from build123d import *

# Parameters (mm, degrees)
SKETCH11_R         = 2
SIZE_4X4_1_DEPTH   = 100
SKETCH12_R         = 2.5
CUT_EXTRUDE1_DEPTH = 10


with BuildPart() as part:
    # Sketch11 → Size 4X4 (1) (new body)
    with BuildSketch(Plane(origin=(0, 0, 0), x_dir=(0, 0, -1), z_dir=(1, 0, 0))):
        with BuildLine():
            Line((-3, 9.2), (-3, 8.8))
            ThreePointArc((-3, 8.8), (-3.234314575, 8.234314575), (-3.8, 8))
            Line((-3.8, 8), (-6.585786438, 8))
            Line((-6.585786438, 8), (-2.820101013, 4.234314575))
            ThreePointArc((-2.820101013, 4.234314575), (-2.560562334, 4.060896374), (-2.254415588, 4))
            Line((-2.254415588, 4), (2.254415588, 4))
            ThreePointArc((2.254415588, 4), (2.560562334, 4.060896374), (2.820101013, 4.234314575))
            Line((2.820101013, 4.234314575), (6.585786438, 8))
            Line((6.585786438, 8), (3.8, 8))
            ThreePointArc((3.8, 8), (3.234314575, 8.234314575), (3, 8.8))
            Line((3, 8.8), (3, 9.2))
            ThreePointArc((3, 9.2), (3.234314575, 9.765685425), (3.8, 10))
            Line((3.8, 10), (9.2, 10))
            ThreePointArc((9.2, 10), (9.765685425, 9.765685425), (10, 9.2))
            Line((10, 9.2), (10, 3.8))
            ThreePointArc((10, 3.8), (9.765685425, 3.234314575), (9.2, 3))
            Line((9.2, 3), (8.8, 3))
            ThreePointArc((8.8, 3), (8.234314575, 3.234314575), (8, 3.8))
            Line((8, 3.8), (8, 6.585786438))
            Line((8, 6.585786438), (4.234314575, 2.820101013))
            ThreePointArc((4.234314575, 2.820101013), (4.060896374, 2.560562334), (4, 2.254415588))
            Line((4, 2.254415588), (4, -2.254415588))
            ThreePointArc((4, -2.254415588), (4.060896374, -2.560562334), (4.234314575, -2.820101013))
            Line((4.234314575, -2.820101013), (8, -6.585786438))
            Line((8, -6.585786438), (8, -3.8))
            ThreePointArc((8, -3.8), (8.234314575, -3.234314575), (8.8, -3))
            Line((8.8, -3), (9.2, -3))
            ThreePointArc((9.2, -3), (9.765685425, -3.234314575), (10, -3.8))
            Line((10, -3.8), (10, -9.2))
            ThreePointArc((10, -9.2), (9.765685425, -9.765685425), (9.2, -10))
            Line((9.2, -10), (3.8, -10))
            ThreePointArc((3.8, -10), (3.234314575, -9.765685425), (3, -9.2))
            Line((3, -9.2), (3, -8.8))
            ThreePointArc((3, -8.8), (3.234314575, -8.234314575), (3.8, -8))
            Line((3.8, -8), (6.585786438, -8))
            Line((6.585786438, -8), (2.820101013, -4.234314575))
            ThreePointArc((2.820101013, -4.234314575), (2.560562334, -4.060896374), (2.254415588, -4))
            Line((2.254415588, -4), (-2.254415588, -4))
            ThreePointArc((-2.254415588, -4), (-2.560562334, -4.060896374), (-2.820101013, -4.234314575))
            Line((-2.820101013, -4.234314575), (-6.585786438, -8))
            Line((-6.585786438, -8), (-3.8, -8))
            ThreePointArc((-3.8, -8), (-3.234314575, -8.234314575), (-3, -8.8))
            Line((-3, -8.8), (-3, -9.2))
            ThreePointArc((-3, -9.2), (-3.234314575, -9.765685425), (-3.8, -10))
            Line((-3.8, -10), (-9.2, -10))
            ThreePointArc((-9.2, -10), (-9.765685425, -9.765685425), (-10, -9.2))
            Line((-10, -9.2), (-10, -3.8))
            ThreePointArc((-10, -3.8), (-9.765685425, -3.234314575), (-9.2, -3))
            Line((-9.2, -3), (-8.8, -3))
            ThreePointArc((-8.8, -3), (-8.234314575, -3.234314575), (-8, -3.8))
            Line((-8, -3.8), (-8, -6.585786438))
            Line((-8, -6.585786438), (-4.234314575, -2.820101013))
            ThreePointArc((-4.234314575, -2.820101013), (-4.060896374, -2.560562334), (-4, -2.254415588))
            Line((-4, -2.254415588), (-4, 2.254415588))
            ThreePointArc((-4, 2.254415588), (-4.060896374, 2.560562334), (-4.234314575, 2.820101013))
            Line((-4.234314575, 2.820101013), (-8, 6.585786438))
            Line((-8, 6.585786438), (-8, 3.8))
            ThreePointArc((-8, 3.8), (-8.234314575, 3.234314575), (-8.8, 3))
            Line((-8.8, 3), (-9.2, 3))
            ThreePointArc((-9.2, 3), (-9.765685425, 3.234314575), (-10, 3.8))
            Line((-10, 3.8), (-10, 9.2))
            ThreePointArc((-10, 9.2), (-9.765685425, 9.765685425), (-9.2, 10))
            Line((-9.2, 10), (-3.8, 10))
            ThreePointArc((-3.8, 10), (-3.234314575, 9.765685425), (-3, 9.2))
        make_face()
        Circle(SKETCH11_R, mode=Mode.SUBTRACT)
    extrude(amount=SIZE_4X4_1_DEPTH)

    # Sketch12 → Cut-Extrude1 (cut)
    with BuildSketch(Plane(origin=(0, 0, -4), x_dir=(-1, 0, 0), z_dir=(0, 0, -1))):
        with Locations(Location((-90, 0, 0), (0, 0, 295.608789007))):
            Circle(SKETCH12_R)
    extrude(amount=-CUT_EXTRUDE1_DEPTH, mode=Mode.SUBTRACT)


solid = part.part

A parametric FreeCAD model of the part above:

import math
import FreeCAD as App
import Part
import Sketcher

doc = App.newDocument("Part")
params = doc.addObject("Spreadsheet::Sheet", "Params")
for row, (alias, value) in enumerate([
    ("sketch1_diameter", "4 mm"),
    ("sketch1_radius", "0.8 mm"),
    ("sketch1_width", "0.4 mm"),
    ("sketch1_width2", "5.4 mm"),
    ("pad1_length", "100 mm"),
    ("sketch2_diameter", "5 mm"),
    ("pocket1_length", "10 mm"),
], start=1):
    params.set(f"A{row}", alias)
    params.set(f"B{row}", "=" + value)
    params.setAlias(f"B{row}", alias)

body = doc.addObject("PartDesign::Body", "Body")

sketch1 = body.newObject("Sketcher::SketchObject", "Sketch")
sketch1.AttachmentSupport = (doc.getObject("YZ_Plane"), [""])
sketch1.MapMode = "FlatFace"
sketch1.addGeometry(Part.LineSegment(App.Vector(8.8, 3, 0), App.Vector(9.2, 3, 0)), False)
sketch1.addGeometry(Part.ArcOfCircle(Part.Circle(App.Vector(9.2, 3.8, 0), App.Vector(0, 0, 1), 0.8), math.radians(-90), math.radians(0)), False)
sketch1.addGeometry(Part.LineSegment(App.Vector(10, 3.8, 0), App.Vector(10, 9.2, 0)), False)
sketch1.addGeometry(Part.ArcOfCircle(Part.Circle(App.Vector(9.2, 9.2, 0), App.Vector(0, 0, 1), 0.8), math.radians(0), math.radians(90)), False)
sketch1.addGeometry(Part.LineSegment(App.Vector(9.2, 10, 0), App.Vector(3.8, 10, 0)), False)
sketch1.addGeometry(Part.ArcOfCircle(Part.Circle(App.Vector(3.8, 9.2, 0), App.Vector(0, 0, 1), 0.8), math.radians(90), math.radians(180)), False)
sketch1.addGeometry(Part.LineSegment(App.Vector(3, 9.2, 0), App.Vector(3, 8.8, 0)), False)
sketch1.addGeometry(Part.ArcOfCircle(Part.Circle(App.Vector(3.8, 8.8, 0), App.Vector(0, 0, 1), 0.8), math.radians(180), math.radians(270)), False)
sketch1.addGeometry(Part.LineSegment(App.Vector(3.8, 8, 0), App.Vector(6.59, 8, 0)), False)
sketch1.addGeometry(Part.LineSegment(App.Vector(6.59, 8, 0), App.Vector(2.82, 4.23, 0)), False)
sketch1.addGeometry(Part.ArcOfCircle(Part.Circle(App.Vector(2.25, 4.8, 0), App.Vector(0, 0, 1), 0.8), math.radians(-90), math.radians(-45)), False)
sketch1.addGeometry(Part.LineSegment(App.Vector(2.25, 4, 0), App.Vector(-2.25, 4, 0)), False)
sketch1.addGeometry(Part.ArcOfCircle(Part.Circle(App.Vector(-2.25, 4.8, 0), App.Vector(0, 0, 1), 0.8), math.radians(-135), math.radians(-90)), False)
sketch1.addGeometry(Part.LineSegment(App.Vector(-2.82, 4.23, 0), App.Vector(-6.59, 8, 0)), False)
sketch1.addGeometry(Part.LineSegment(App.Vector(-6.59, 8, 0), App.Vector(-3.8, 8, 0)), False)
sketch1.addGeometry(Part.ArcOfCircle(Part.Circle(App.Vector(-3.8, 8.8, 0), App.Vector(0, 0, 1), 0.8), math.radians(-90), math.radians(0)), False)
sketch1.addGeometry(Part.LineSegment(App.Vector(-3, 8.8, 0), App.Vector(-3, 9.2, 0)), False)
sketch1.addGeometry(Part.ArcOfCircle(Part.Circle(App.Vector(-3.8, 9.2, 0), App.Vector(0, 0, 1), 0.8), math.radians(0), math.radians(90)), False)
sketch1.addGeometry(Part.LineSegment(App.Vector(-3.8, 10, 0), App.Vector(-9.2, 10, 0)), False)
sketch1.addGeometry(Part.ArcOfCircle(Part.Circle(App.Vector(-9.2, 9.2, 0), App.Vector(0, 0, 1), 0.8), math.radians(90), math.radians(180)), False)
sketch1.addGeometry(Part.LineSegment(App.Vector(-10, 9.2, 0), App.Vector(-10, 3.8, 0)), False)
sketch1.addGeometry(Part.ArcOfCircle(Part.Circle(App.Vector(-9.2, 3.8, 0), App.Vector(0, 0, 1), 0.8), math.radians(180), math.radians(270)), False)
sketch1.addGeometry(Part.LineSegment(App.Vector(-9.2, 3, 0), App.Vector(-8.8, 3, 0)), False)
sketch1.addGeometry(Part.ArcOfCircle(Part.Circle(App.Vector(-8.8, 3.8, 0), App.Vector(0, 0, 1), 0.8), math.radians(-90), math.radians(0)), False)
sketch1.addGeometry(Part.LineSegment(App.Vector(-8, 3.8, 0), App.Vector(-8, 6.59, 0)), False)
sketch1.addGeometry(Part.LineSegment(App.Vector(-8, 6.59, 0), App.Vector(-4.23, 2.82, 0)), False)
sketch1.addGeometry(Part.ArcOfCircle(Part.Circle(App.Vector(-4.8, 2.25, 0), App.Vector(0, 0, 1), 0.8), math.radians(0), math.radians(45)), False)
sketch1.addGeometry(Part.LineSegment(App.Vector(-4, 2.25, 0), App.Vector(-4, -2.25, 0)), False)
sketch1.addGeometry(Part.ArcOfCircle(Part.Circle(App.Vector(-4.8, -2.25, 0), App.Vector(0, 0, 1), 0.8), math.radians(-45), math.radians(0)), False)
sketch1.addGeometry(Part.LineSegment(App.Vector(-4.23, -2.82, 0), App.Vector(-8, -6.59, 0)), False)
sketch1.addGeometry(Part.LineSegment(App.Vector(-8, -6.59, 0), App.Vector(-8, -3.8, 0)), False)
sketch1.addGeometry(Part.ArcOfCircle(Part.Circle(App.Vector(-8.8, -3.8, 0), App.Vector(0, 0, 1), 0.8), math.radians(0), math.radians(90)), False)
sketch1.addGeometry(Part.LineSegment(App.Vector(-8.8, -3, 0), App.Vector(-9.2, -3, 0)), False)
sketch1.addGeometry(Part.ArcOfCircle(Part.Circle(App.Vector(-9.2, -3.8, 0), App.Vector(0, 0, 1), 0.8), math.radians(90), math.radians(180)), False)
sketch1.addGeometry(Part.LineSegment(App.Vector(-10, -3.8, 0), App.Vector(-10, -9.2, 0)), False)
sketch1.addGeometry(Part.ArcOfCircle(Part.Circle(App.Vector(-9.2, -9.2, 0), App.Vector(0, 0, 1), 0.8), math.radians(180), math.radians(270)), False)
sketch1.addGeometry(Part.LineSegment(App.Vector(-9.2, -10, 0), App.Vector(-3.8, -10, 0)), False)
sketch1.addGeometry(Part.ArcOfCircle(Part.Circle(App.Vector(-3.8, -9.2, 0), App.Vector(0, 0, 1), 0.8), math.radians(-90), math.radians(0)), False)
sketch1.addGeometry(Part.LineSegment(App.Vector(-3, -9.2, 0), App.Vector(-3, -8.8, 0)), False)
sketch1.addGeometry(Part.ArcOfCircle(Part.Circle(App.Vector(-3.8, -8.8, 0), App.Vector(0, 0, 1), 0.8), math.radians(0), math.radians(90)), False)
sketch1.addGeometry(Part.LineSegment(App.Vector(-3.8, -8, 0), App.Vector(-6.59, -8, 0)), False)
sketch1.addGeometry(Part.LineSegment(App.Vector(-6.59, -8, 0), App.Vector(-2.82, -4.23, 0)), False)
sketch1.addGeometry(Part.ArcOfCircle(Part.Circle(App.Vector(-2.25, -4.8, 0), App.Vector(0, 0, 1), 0.8), math.radians(90), math.radians(135)), False)
sketch1.addGeometry(Part.LineSegment(App.Vector(-2.25, -4, 0), App.Vector(2.25, -4, 0)), False)
sketch1.addGeometry(Part.ArcOfCircle(Part.Circle(App.Vector(2.25, -4.8, 0), App.Vector(0, 0, 1), 0.8), math.radians(45), math.radians(90)), False)
sketch1.addGeometry(Part.LineSegment(App.Vector(2.82, -4.23, 0), App.Vector(6.59, -8, 0)), False)
sketch1.addGeometry(Part.LineSegment(App.Vector(6.59, -8, 0), App.Vector(3.8, -8, 0)), False)
sketch1.addGeometry(Part.ArcOfCircle(Part.Circle(App.Vector(3.8, -8.8, 0), App.Vector(0, 0, 1), 0.8), math.radians(90), math.radians(180)), False)
sketch1.addGeometry(Part.LineSegment(App.Vector(3, -8.8, 0), App.Vector(3, -9.2, 0)), False)
sketch1.addGeometry(Part.ArcOfCircle(Part.Circle(App.Vector(3.8, -9.2, 0), App.Vector(0, 0, 1), 0.8), math.radians(180), math.radians(270)), False)
sketch1.addGeometry(Part.LineSegment(App.Vector(3.8, -10, 0), App.Vector(9.2, -10, 0)), False)
sketch1.addGeometry(Part.ArcOfCircle(Part.Circle(App.Vector(9.2, -9.2, 0), App.Vector(0, 0, 1), 0.8), math.radians(-90), math.radians(0)), False)
sketch1.addGeometry(Part.LineSegment(App.Vector(10, -9.2, 0), App.Vector(10, -3.8, 0)), False)
sketch1.addGeometry(Part.ArcOfCircle(Part.Circle(App.Vector(9.2, -3.8, 0), App.Vector(0, 0, 1), 0.8), math.radians(0), math.radians(90)), False)
sketch1.addGeometry(Part.LineSegment(App.Vector(9.2, -3, 0), App.Vector(8.8, -3, 0)), False)
sketch1.addGeometry(Part.ArcOfCircle(Part.Circle(App.Vector(8.8, -3.8, 0), App.Vector(0, 0, 1), 0.8), math.radians(90), math.radians(180)), False)
sketch1.addGeometry(Part.LineSegment(App.Vector(8, -3.8, 0), App.Vector(8, -6.59, 0)), False)
sketch1.addGeometry(Part.LineSegment(App.Vector(8, -6.59, 0), App.Vector(4.23, -2.82, 0)), False)
sketch1.addGeometry(Part.ArcOfCircle(Part.Circle(App.Vector(4.8, -2.25, 0), App.Vector(0, 0, 1), 0.8), math.radians(180), math.radians(225)), False)
sketch1.addGeometry(Part.LineSegment(App.Vector(4, -2.25, 0), App.Vector(4, 2.25, 0)), False)
sketch1.addGeometry(Part.ArcOfCircle(Part.Circle(App.Vector(4.8, 2.25, 0), App.Vector(0, 0, 1), 0.8), math.radians(135), math.radians(180)), False)
sketch1.addGeometry(Part.LineSegment(App.Vector(4.23, 2.82, 0), App.Vector(8, 6.59, 0)), False)
sketch1.addGeometry(Part.LineSegment(App.Vector(8, 6.59, 0), App.Vector(8, 3.8, 0)), False)
sketch1.addGeometry(Part.ArcOfCircle(Part.Circle(App.Vector(8.8, 3.8, 0), App.Vector(0, 0, 1), 0.8), math.radians(180), math.radians(270)), False)
sketch1.addGeometry(Part.Circle(App.Vector(0, 0, 0), App.Vector(0, 0, 1), 2), False)
sketch1.addConstraint(Sketcher.Constraint("Tangent", 0, 2, 1, 1))
sketch1.addConstraint(Sketcher.Constraint("Tangent", 1, 2, 2, 1))
sketch1.addConstraint(Sketcher.Constraint("Tangent", 2, 2, 3, 1))
sketch1.addConstraint(Sketcher.Constraint("Tangent", 3, 2, 4, 1))
sketch1.addConstraint(Sketcher.Constraint("Tangent", 4, 2, 5, 1))
sketch1.addConstraint(Sketcher.Constraint("Tangent", 5, 2, 6, 1))
sketch1.addConstraint(Sketcher.Constraint("Tangent", 6, 2, 7, 1))
sketch1.addConstraint(Sketcher.Constraint("Tangent", 7, 2, 8, 1))
sketch1.addConstraint(Sketcher.Constraint("Coincident", 8, 2, 9, 1))
sketch1.addConstraint(Sketcher.Constraint("Tangent", 9, 2, 10, 2))
sketch1.addConstraint(Sketcher.Constraint("Tangent", 10, 1, 11, 1))
sketch1.addConstraint(Sketcher.Constraint("Tangent", 11, 2, 12, 2))
sketch1.addConstraint(Sketcher.Constraint("Tangent", 12, 1, 13, 1))
sketch1.addConstraint(Sketcher.Constraint("Coincident", 13, 2, 14, 1))
sketch1.addConstraint(Sketcher.Constraint("Tangent", 14, 2, 15, 1))
sketch1.addConstraint(Sketcher.Constraint("Tangent", 15, 2, 16, 1))
sketch1.addConstraint(Sketcher.Constraint("Tangent", 16, 2, 17, 1))
sketch1.addConstraint(Sketcher.Constraint("Tangent", 17, 2, 18, 1))
sketch1.addConstraint(Sketcher.Constraint("Tangent", 18, 2, 19, 1))
sketch1.addConstraint(Sketcher.Constraint("Tangent", 19, 2, 20, 1))
sketch1.addConstraint(Sketcher.Constraint("Tangent", 20, 2, 21, 1))
sketch1.addConstraint(Sketcher.Constraint("Tangent", 21, 2, 22, 1))
sketch1.addConstraint(Sketcher.Constraint("Tangent", 22, 2, 23, 1))
sketch1.addConstraint(Sketcher.Constraint("Tangent", 23, 2, 24, 1))
sketch1.addConstraint(Sketcher.Constraint("Coincident", 24, 2, 25, 1))
sketch1.addConstraint(Sketcher.Constraint("Tangent", 25, 2, 26, 2))
sketch1.addConstraint(Sketcher.Constraint("Tangent", 26, 1, 27, 1))
sketch1.addConstraint(Sketcher.Constraint("Tangent", 27, 2, 28, 2))
sketch1.addConstraint(Sketcher.Constraint("Tangent", 28, 1, 29, 1))
sketch1.addConstraint(Sketcher.Constraint("Coincident", 29, 2, 30, 1))
sketch1.addConstraint(Sketcher.Constraint("Tangent", 30, 2, 31, 1))
sketch1.addConstraint(Sketcher.Constraint("Tangent", 31, 2, 32, 1))
sketch1.addConstraint(Sketcher.Constraint("Tangent", 32, 2, 33, 1))
sketch1.addConstraint(Sketcher.Constraint("Tangent", 33, 2, 34, 1))
sketch1.addConstraint(Sketcher.Constraint("Tangent", 34, 2, 35, 1))
sketch1.addConstraint(Sketcher.Constraint("Tangent", 35, 2, 36, 1))
sketch1.addConstraint(Sketcher.Constraint("Tangent", 36, 2, 37, 1))
sketch1.addConstraint(Sketcher.Constraint("Tangent", 37, 2, 38, 1))
sketch1.addConstraint(Sketcher.Constraint("Tangent", 38, 2, 39, 1))
sketch1.addConstraint(Sketcher.Constraint("Tangent", 39, 2, 40, 1))
sketch1.addConstraint(Sketcher.Constraint("Coincident", 40, 2, 41, 1))
sketch1.addConstraint(Sketcher.Constraint("Tangent", 41, 2, 42, 2))
sketch1.addConstraint(Sketcher.Constraint("Tangent", 42, 1, 43, 1))
sketch1.addConstraint(Sketcher.Constraint("Tangent", 43, 2, 44, 2))
sketch1.addConstraint(Sketcher.Constraint("Tangent", 44, 1, 45, 1))
sketch1.addConstraint(Sketcher.Constraint("Coincident", 45, 2, 46, 1))
sketch1.addConstraint(Sketcher.Constraint("Tangent", 46, 2, 47, 1))
sketch1.addConstraint(Sketcher.Constraint("Tangent", 47, 2, 48, 1))
sketch1.addConstraint(Sketcher.Constraint("Tangent", 48, 2, 49, 1))
sketch1.addConstraint(Sketcher.Constraint("Tangent", 49, 2, 50, 1))
sketch1.addConstraint(Sketcher.Constraint("Tangent", 50, 2, 51, 1))
sketch1.addConstraint(Sketcher.Constraint("Tangent", 51, 2, 52, 1))
sketch1.addConstraint(Sketcher.Constraint("Tangent", 52, 2, 53, 1))
sketch1.addConstraint(Sketcher.Constraint("Tangent", 53, 2, 54, 1))
sketch1.addConstraint(Sketcher.Constraint("Tangent", 54, 2, 55, 1))
sketch1.addConstraint(Sketcher.Constraint("Tangent", 55, 2, 56, 1))
sketch1.addConstraint(Sketcher.Constraint("Coincident", 56, 2, 57, 1))
sketch1.addConstraint(Sketcher.Constraint("Tangent", 57, 2, 58, 2))
sketch1.addConstraint(Sketcher.Constraint("Tangent", 58, 1, 59, 1))
sketch1.addConstraint(Sketcher.Constraint("Tangent", 59, 2, 60, 2))
sketch1.addConstraint(Sketcher.Constraint("Tangent", 60, 1, 61, 1))
sketch1.addConstraint(Sketcher.Constraint("Coincident", 61, 2, 62, 1))
sketch1.addConstraint(Sketcher.Constraint("Tangent", 62, 2, 63, 1))
sketch1.addConstraint(Sketcher.Constraint("Tangent", 63, 2, 0, 1))
sketch1.addConstraint(Sketcher.Constraint("Horizontal", 0))
sketch1.addConstraint(Sketcher.Constraint("Vertical", 2))
sketch1.addConstraint(Sketcher.Constraint("Horizontal", 4))
sketch1.addConstraint(Sketcher.Constraint("Vertical", 6))
sketch1.addConstraint(Sketcher.Constraint("Horizontal", 8))
sketch1.addConstraint(Sketcher.Constraint("Horizontal", 11))
sketch1.addConstraint(Sketcher.Constraint("Horizontal", 14))
sketch1.addConstraint(Sketcher.Constraint("Vertical", 16))
sketch1.addConstraint(Sketcher.Constraint("Horizontal", 18))
sketch1.addConstraint(Sketcher.Constraint("Vertical", 20))
sketch1.addConstraint(Sketcher.Constraint("Horizontal", 22))
sketch1.addConstraint(Sketcher.Constraint("Vertical", 24))
sketch1.addConstraint(Sketcher.Constraint("Vertical", 27))
sketch1.addConstraint(Sketcher.Constraint("Vertical", 30))
sketch1.addConstraint(Sketcher.Constraint("Horizontal", 32))
sketch1.addConstraint(Sketcher.Constraint("Vertical", 34))
sketch1.addConstraint(Sketcher.Constraint("Horizontal", 36))
sketch1.addConstraint(Sketcher.Constraint("Vertical", 38))
sketch1.addConstraint(Sketcher.Constraint("Horizontal", 40))
sketch1.addConstraint(Sketcher.Constraint("Horizontal", 43))
sketch1.addConstraint(Sketcher.Constraint("Horizontal", 46))
sketch1.addConstraint(Sketcher.Constraint("Vertical", 48))
sketch1.addConstraint(Sketcher.Constraint("Horizontal", 50))
sketch1.addConstraint(Sketcher.Constraint("Vertical", 52))
sketch1.addConstraint(Sketcher.Constraint("Horizontal", 54))
sketch1.addConstraint(Sketcher.Constraint("Vertical", 56))
sketch1.addConstraint(Sketcher.Constraint("Vertical", 59))
sketch1.addConstraint(Sketcher.Constraint("Vertical", 62))
sketch1.addConstraint(Sketcher.Constraint("Coincident", 64, 3, -1, 1))
sketch1.addConstraint(Sketcher.Constraint("Equal", 1, 3))
sketch1.addConstraint(Sketcher.Constraint("Equal", 3, 5))
sketch1.addConstraint(Sketcher.Constraint("Equal", 5, 7))
sketch1.addConstraint(Sketcher.Constraint("Equal", 7, 10))
sketch1.addConstraint(Sketcher.Constraint("Equal", 10, 12))
sketch1.addConstraint(Sketcher.Constraint("Equal", 12, 15))
sketch1.addConstraint(Sketcher.Constraint("Equal", 15, 17))
sketch1.addConstraint(Sketcher.Constraint("Equal", 17, 19))
sketch1.addConstraint(Sketcher.Constraint("Equal", 19, 21))
sketch1.addConstraint(Sketcher.Constraint("Equal", 21, 23))
sketch1.addConstraint(Sketcher.Constraint("Equal", 23, 26))
sketch1.addConstraint(Sketcher.Constraint("Equal", 26, 28))
sketch1.addConstraint(Sketcher.Constraint("Equal", 28, 31))
sketch1.addConstraint(Sketcher.Constraint("Equal", 31, 33))
sketch1.addConstraint(Sketcher.Constraint("Equal", 33, 35))
sketch1.addConstraint(Sketcher.Constraint("Equal", 35, 37))
sketch1.addConstraint(Sketcher.Constraint("Equal", 37, 39))
sketch1.addConstraint(Sketcher.Constraint("Equal", 39, 42))
sketch1.addConstraint(Sketcher.Constraint("Equal", 42, 44))
sketch1.addConstraint(Sketcher.Constraint("Equal", 44, 47))
sketch1.addConstraint(Sketcher.Constraint("Equal", 47, 49))
sketch1.addConstraint(Sketcher.Constraint("Equal", 49, 51))
sketch1.addConstraint(Sketcher.Constraint("Equal", 51, 53))
sketch1.addConstraint(Sketcher.Constraint("Equal", 53, 55))
sketch1.addConstraint(Sketcher.Constraint("Equal", 55, 58))
sketch1.addConstraint(Sketcher.Constraint("Equal", 58, 60))
sketch1.addConstraint(Sketcher.Constraint("Equal", 60, 63))
sketch1.addConstraint(Sketcher.Constraint("Symmetric", 1, 3, 33, 3, -1, 1))
sketch1.addConstraint(Sketcher.Constraint("Symmetric", 5, 3, 37, 3, -1, 1))
sketch1.addConstraint(Sketcher.Constraint("Symmetric", 10, 3, 42, 3, -1, 1))
sketch1.addConstraint(Sketcher.Constraint("Symmetric", 15, 3, 47, 3, -1, 1))
sketch1.addConstraint(Sketcher.Constraint("Symmetric", 19, 3, 51, 3, -1, 1))
sketch1.addConstraint(Sketcher.Constraint("Symmetric", 23, 3, 55, 3, -1, 1))
sketch1.addConstraint(Sketcher.Constraint("Symmetric", 26, 3, 58, 3, -1, 1))
sketch1.addConstraint(Sketcher.Constraint("Symmetric", 8, 2, 40, 2, -1, 1))
sketch1.addConstraint(Sketcher.Constraint("Symmetric", 12, 1, 44, 1, -1, 1))
sketch1.addConstraint(Sketcher.Constraint("Symmetric", 28, 1, 60, 1, -1, 1))
sketch1.addConstraint(Sketcher.Constraint("Symmetric", 7, 3, 15, 3, -2))
sketch1.addConstraint(Sketcher.Constraint("Symmetric", 3, 3, 19, 3, -2))
sketch1.addConstraint(Sketcher.Constraint("Symmetric", 31, 3, 55, 3, -2))
sketch1.addConstraint(Sketcher.Constraint("Symmetric", 9, 2, 12, 1, -2))
sketch1.addConstraint(Sketcher.Constraint("Symmetric", 28, 1, 57, 2, -2))
sketch1.addConstraint(Sketcher.Constraint("Symmetric", 24, 2, 61, 2, -2))
sketch1.addConstraint(Sketcher.Constraint("Perpendicular", 9, 13))
sketch1.addConstraint(Sketcher.Constraint("Parallel", 13, 25))
sketch1.addConstraint(Sketcher.Constraint("Equal", 50, 2))
sketch1.addConstraint(Sketcher.Constraint("Equal", 54, 6))
sketch1.addConstraint(Sketcher.Constraint("Equal", 46, 24))
sketch1.addConstraint(Sketcher.Constraint("Equal", 43, 27))
sketch1.addConstraint(Sketcher.Constraint("Equal", 13, 25))
sketch1.addConstraint(Sketcher.Constraint("Diameter", 64, 4.0))
sketch1.addConstraint(Sketcher.Constraint("Radius", 1, 0.8))
sketch1.addConstraint(Sketcher.Constraint("DistanceX", 0, 1, 0, 2, 0.4))
sketch1.addConstraint(Sketcher.Constraint("DistanceX", 4, 2, 4, 1, 5.4))
sketch1.addConstraint(Sketcher.Constraint("DistanceY", -1, 1, 0, 2, 3.0))
sketch1.addConstraint(Sketcher.Constraint("DistanceY", -1, 1, 10, 1, 4.0))
sketch1.addConstraint(Sketcher.Constraint("DistanceX", 11, 2, 11, 1, 4.508831))
sketch1.setExpression("Constraints[143]", "Params.sketch1_diameter")
sketch1.setExpression("Constraints[144]", "Params.sketch1_radius")
sketch1.setExpression("Constraints[145]", "Params.sketch1_width")
sketch1.setExpression("Constraints[146]", "Params.sketch1_width2")
pad1 = body.newObject("PartDesign::Pad", "Pad")
pad1.Profile = sketch1
pad1.setExpression("Length", "Params.pad1_length")

sketch2 = body.newObject("Sketcher::SketchObject", "Sketch001")
sketch2.AttachmentSupport = (doc.getObject("XY_Plane"), [""])
sketch2.MapMode = "FlatFace"
sketch2.AttachmentOffset = App.Placement(App.Vector(0, 0, -4), App.Rotation())
sketch2.addGeometry(Part.Circle(App.Vector(90, 0, 0), App.Vector(0, 0, 1), 2.5), False)
sketch2.addConstraint(Sketcher.Constraint("PointOnObject", 0, 3, -1))
sketch2.addConstraint(Sketcher.Constraint("Diameter", 0, 5.0))
sketch2.addConstraint(Sketcher.Constraint("DistanceX", -1, 1, 0, 3, 90.0))
sketch2.setExpression("Constraints[1]", "Params.sketch2_diameter")
pocket1 = body.newObject("PartDesign::Pocket", "Pocket")
pocket1.Profile = sketch2
pocket1.setExpression("Length", "Params.pocket1_length")
pocket1.Reversed = True

doc.recompute()
